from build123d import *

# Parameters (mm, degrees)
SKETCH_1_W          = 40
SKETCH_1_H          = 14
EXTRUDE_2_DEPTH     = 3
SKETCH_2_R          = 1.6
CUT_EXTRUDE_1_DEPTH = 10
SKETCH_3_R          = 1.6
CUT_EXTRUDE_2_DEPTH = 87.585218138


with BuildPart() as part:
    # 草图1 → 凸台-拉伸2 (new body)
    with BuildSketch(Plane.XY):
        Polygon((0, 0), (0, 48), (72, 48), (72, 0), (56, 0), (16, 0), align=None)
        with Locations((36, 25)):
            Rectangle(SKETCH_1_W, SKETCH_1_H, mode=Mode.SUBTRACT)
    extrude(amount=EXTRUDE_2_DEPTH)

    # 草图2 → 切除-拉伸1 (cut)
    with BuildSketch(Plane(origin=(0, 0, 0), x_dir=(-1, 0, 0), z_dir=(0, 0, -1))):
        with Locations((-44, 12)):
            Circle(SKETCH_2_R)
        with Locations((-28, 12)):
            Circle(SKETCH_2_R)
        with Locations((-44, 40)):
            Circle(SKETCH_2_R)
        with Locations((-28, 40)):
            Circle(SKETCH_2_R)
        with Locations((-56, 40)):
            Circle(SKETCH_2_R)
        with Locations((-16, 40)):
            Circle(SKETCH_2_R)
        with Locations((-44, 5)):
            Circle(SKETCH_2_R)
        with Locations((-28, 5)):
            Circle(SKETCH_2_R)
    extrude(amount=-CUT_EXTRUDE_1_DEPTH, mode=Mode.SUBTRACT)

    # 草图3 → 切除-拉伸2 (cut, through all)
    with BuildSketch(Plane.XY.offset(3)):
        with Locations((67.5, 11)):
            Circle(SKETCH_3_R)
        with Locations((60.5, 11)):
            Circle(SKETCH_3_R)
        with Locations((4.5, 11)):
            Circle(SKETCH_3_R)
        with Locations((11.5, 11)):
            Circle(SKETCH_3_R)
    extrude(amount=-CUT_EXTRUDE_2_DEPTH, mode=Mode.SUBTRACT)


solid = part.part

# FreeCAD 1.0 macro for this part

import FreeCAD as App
import Part
import Sketcher
from FreeCAD import Vector
Q = App.Units.Quantity

doc = App.newDocument("Part")
body = doc.addObject("PartDesign::Body", "Body")

# Sketch on XY plane
sketch1 = body.newObject("Sketcher::SketchObject", "Sketch")
sketch1.AttachmentSupport = (doc.getObject("XY_Plane"), [""])
sketch1.MapMode = "FlatFace"
sketch1.addGeometry([
    Part.LineSegment(Vector(0, 48, 0), Vector(0, 0, 0)),  # 0
    Part.LineSegment(Vector(0, 0, 0), Vector(72, 0, 0)),  # 1
    Part.LineSegment(Vector(72, 0, 0), Vector(72, 48, 0)),  # 2
    Part.LineSegment(Vector(72, 48, 0), Vector(0, 48, 0)),  # 3
    Part.LineSegment(Vector(16, 18, 0), Vector(16, 32, 0)),  # 4
    Part.LineSegment(Vector(16, 32, 0), Vector(56, 32, 0)),  # 5
    Part.LineSegment(Vector(56, 32, 0), Vector(56, 18, 0)),  # 6
    Part.LineSegment(Vector(56, 18, 0), Vector(16, 18, 0)),  # 7
], False)
sketch1.addConstraint([
    Sketcher.Constraint("Coincident", 0, 2, 1, 1),
    Sketcher.Constraint("Coincident", 1, 2, 2, 1),
    Sketcher.Constraint("Coincident", 2, 2, 3, 1),
    Sketcher.Constraint("Coincident", 3, 2, 0, 1),
    Sketcher.Constraint("Coincident", 4, 2, 5, 1),
    Sketcher.Constraint("Coincident", 5, 2, 6, 1),
    Sketcher.Constraint("Coincident", 6, 2, 7, 1),
    Sketcher.Constraint("Coincident", 7, 2, 4, 1),
    Sketcher.Constraint("Vertical", 0),
    Sketcher.Constraint("Horizontal", 1),
    Sketcher.Constraint("Vertical", 2),
    Sketcher.Constraint("Horizontal", 3),
    Sketcher.Constraint("Vertical", 4),
    Sketcher.Constraint("Horizontal", 5),
    Sketcher.Constraint("Vertical", 6),
    Sketcher.Constraint("Horizontal", 7),
    Sketcher.Constraint("Coincident", 0, 2, -1, 1),
    Sketcher.Constraint("DistanceX", 1, 1, 1, 2, Q("72 mm")),
    Sketcher.Constraint("DistanceX", 5, 1, 5, 2, Q("40 mm")),
    Sketcher.Constraint("DistanceY", 0, 2, 0, 1, Q("48 mm")),
    Sketcher.Constraint("DistanceY", 4, 1, 4, 2, Q("14 mm")),
    Sketcher.Constraint("DistanceX", -1, 1, 4, 2, Q("16 mm")),
    Sketcher.Constraint("DistanceY", -1, 1, 4, 2, Q("32 mm")),
])
pad1 = body.newObject("PartDesign::Pad", "Pad")
pad1.Profile = sketch1
pad1.Length = 3

# Sketch on XY plane
sketch2 = body.newObject("Sketcher::SketchObject", "Sketch001")
sketch2.AttachmentSupport = (doc.getObject("XY_Plane"), [""])
sketch2.MapMode = "FlatFace"
sketch2.addGeometry([
    Part.Circle(Vector(44, 12, 0), Vector(0, 0, 1), 1.6),  # 0
    Part.Circle(Vector(28, 12, 0), Vector(0, 0, 1), 1.6),  # 1
    Part.Circle(Vector(44, 40, 0), Vector(0, 0, 1), 1.6),  # 2
    Part.Circle(Vector(28, 40, 0), Vector(0, 0, 1), 1.6),  # 3
    Part.Circle(Vector(56, 40, 0), Vector(0, 0, 1), 1.6),  # 4
    Part.Circle(Vector(16, 40, 0), Vector(0, 0, 1), 1.6),  # 5
    Part.Circle(Vector(44, 5, 0), Vector(0, 0, 1), 1.6),  # 6
    Part.Circle(Vector(28, 5, 0), Vector(0, 0, 1), 1.6),  # 7
], False)
sketch2.addConstraint([
    Sketcher.Constraint("Equal", 0, 1),
    Sketcher.Constraint("Equal", 1, 2),
    Sketcher.Constraint("Equal", 2, 3),
    Sketcher.Constraint("Equal", 3, 4),
    Sketcher.Constraint("Equal", 4, 5),
    Sketcher.Constraint("Equal", 5, 6),
    Sketcher.Constraint("Equal", 6, 7),
    Sketcher.Constraint("Horizontal", 0, 3, 1, 3),
    Sketcher.Constraint("Horizontal", 2, 3, 3, 3),
    Sketcher.Constraint("Horizontal", 3, 3, 4, 3),
    Sketcher.Constraint("Horizontal", 4, 3, 5, 3),
    Sketcher.Constraint("Horizontal", 6, 3, 7, 3),
    Sketcher.Constraint("Vertical", 0, 3, 2, 3),
    Sketcher.Constraint("Vertical", 1, 3, 3, 3),
    Sketcher.Constraint("Vertical", 2, 3, 6, 3),
    Sketcher.Constraint("Vertical", 3, 3, 7, 3),
    Sketcher.Constraint("Diameter", 0, Q("3.2 mm")),
    Sketcher.Constraint("DistanceX", -1, 1, 0, 3, Q("44 mm")),
    Sketcher.Constraint("DistanceY", -1, 1, 0, 3, Q("12 mm")),
    Sketcher.Constraint("DistanceX", -1, 1, 1, 3, Q("28 mm")),
    Sketcher.Constraint("DistanceY", -1, 1, 2, 3, Q("40 mm")),
    Sketcher.Constraint("DistanceX", -1, 1, 4, 3, Q("56 mm")),
    Sketcher.Constraint("DistanceX", -1, 1, 5, 3, Q("16 mm")),
    Sketcher.Constraint("DistanceY", -1, 1, 6, 3, Q("5 mm")),
])
pocket1 = body.newObject("PartDesign::Pocket", "Pocket")
pocket1.Profile = sketch2
pocket1.Length = 10
pocket1.Reversed = True

# Sketch on XY plane
sketch3 = body.newObject("Sketcher::SketchObject", "Sketch002")
sketch3.AttachmentSupport = (doc.getObject("XY_Plane"), [""])
sketch3.MapMode = "FlatFace"
sketch3.AttachmentOffset = App.Placement(Vector(0, 0, 3), App.Rotation())
sketch3.addGeometry([
    Part.Circle(Vector(67.5, 11, 0), Vector(0, 0, 1), 1.6),
    Part.Circle(Vector(60.5, 11, 0), Vector(0, 0, 1), 1.6),
    Part.Circle(Vector(4.5, 11, 0), Vector(0, 0, 1), 1.6),
    Part.Circle(Vector(11.5, 11, 0), Vector(0, 0, 1), 1.6),
], False)
sketch3.addConstraint([
    Sketcher.Constraint("Equal", 0, 1),
    Sketcher.Constraint("Equal", 1, 2),
    Sketcher.Constraint("Equal", 2, 3),
    Sketcher.Constraint("Horizontal", 0, 3, 1, 3),
    Sketcher.Constraint("Horizontal", 1, 3, 2, 3),
    Sketcher.Constraint("Horizontal", 2, 3, 3, 3),
    Sketcher.Constraint("Diameter", 0, Q("3.2 mm")),
    Sketcher.Constraint("DistanceY", -1, 1, 0, 3, Q("11 mm")),
    Sketcher.Constraint("DistanceX", 1, 3, 0, 3, Q("7 mm")),
    Sketcher.Constraint("DistanceX", 2, 3, 1, 3, Q("56 mm")),
    Sketcher.Constraint("DistanceX", 2, 3, 3, 3, Q("7 mm")),
    Sketcher.Constraint("DistanceX", -1, 1, 0, 3, Q("67.5 mm")),
])
pocket2 = body.newObject("PartDesign::Pocket", "Pocket001")
pocket2.Profile = sketch3
pocket2.Type = "ThroughAll"

doc.recompute()
